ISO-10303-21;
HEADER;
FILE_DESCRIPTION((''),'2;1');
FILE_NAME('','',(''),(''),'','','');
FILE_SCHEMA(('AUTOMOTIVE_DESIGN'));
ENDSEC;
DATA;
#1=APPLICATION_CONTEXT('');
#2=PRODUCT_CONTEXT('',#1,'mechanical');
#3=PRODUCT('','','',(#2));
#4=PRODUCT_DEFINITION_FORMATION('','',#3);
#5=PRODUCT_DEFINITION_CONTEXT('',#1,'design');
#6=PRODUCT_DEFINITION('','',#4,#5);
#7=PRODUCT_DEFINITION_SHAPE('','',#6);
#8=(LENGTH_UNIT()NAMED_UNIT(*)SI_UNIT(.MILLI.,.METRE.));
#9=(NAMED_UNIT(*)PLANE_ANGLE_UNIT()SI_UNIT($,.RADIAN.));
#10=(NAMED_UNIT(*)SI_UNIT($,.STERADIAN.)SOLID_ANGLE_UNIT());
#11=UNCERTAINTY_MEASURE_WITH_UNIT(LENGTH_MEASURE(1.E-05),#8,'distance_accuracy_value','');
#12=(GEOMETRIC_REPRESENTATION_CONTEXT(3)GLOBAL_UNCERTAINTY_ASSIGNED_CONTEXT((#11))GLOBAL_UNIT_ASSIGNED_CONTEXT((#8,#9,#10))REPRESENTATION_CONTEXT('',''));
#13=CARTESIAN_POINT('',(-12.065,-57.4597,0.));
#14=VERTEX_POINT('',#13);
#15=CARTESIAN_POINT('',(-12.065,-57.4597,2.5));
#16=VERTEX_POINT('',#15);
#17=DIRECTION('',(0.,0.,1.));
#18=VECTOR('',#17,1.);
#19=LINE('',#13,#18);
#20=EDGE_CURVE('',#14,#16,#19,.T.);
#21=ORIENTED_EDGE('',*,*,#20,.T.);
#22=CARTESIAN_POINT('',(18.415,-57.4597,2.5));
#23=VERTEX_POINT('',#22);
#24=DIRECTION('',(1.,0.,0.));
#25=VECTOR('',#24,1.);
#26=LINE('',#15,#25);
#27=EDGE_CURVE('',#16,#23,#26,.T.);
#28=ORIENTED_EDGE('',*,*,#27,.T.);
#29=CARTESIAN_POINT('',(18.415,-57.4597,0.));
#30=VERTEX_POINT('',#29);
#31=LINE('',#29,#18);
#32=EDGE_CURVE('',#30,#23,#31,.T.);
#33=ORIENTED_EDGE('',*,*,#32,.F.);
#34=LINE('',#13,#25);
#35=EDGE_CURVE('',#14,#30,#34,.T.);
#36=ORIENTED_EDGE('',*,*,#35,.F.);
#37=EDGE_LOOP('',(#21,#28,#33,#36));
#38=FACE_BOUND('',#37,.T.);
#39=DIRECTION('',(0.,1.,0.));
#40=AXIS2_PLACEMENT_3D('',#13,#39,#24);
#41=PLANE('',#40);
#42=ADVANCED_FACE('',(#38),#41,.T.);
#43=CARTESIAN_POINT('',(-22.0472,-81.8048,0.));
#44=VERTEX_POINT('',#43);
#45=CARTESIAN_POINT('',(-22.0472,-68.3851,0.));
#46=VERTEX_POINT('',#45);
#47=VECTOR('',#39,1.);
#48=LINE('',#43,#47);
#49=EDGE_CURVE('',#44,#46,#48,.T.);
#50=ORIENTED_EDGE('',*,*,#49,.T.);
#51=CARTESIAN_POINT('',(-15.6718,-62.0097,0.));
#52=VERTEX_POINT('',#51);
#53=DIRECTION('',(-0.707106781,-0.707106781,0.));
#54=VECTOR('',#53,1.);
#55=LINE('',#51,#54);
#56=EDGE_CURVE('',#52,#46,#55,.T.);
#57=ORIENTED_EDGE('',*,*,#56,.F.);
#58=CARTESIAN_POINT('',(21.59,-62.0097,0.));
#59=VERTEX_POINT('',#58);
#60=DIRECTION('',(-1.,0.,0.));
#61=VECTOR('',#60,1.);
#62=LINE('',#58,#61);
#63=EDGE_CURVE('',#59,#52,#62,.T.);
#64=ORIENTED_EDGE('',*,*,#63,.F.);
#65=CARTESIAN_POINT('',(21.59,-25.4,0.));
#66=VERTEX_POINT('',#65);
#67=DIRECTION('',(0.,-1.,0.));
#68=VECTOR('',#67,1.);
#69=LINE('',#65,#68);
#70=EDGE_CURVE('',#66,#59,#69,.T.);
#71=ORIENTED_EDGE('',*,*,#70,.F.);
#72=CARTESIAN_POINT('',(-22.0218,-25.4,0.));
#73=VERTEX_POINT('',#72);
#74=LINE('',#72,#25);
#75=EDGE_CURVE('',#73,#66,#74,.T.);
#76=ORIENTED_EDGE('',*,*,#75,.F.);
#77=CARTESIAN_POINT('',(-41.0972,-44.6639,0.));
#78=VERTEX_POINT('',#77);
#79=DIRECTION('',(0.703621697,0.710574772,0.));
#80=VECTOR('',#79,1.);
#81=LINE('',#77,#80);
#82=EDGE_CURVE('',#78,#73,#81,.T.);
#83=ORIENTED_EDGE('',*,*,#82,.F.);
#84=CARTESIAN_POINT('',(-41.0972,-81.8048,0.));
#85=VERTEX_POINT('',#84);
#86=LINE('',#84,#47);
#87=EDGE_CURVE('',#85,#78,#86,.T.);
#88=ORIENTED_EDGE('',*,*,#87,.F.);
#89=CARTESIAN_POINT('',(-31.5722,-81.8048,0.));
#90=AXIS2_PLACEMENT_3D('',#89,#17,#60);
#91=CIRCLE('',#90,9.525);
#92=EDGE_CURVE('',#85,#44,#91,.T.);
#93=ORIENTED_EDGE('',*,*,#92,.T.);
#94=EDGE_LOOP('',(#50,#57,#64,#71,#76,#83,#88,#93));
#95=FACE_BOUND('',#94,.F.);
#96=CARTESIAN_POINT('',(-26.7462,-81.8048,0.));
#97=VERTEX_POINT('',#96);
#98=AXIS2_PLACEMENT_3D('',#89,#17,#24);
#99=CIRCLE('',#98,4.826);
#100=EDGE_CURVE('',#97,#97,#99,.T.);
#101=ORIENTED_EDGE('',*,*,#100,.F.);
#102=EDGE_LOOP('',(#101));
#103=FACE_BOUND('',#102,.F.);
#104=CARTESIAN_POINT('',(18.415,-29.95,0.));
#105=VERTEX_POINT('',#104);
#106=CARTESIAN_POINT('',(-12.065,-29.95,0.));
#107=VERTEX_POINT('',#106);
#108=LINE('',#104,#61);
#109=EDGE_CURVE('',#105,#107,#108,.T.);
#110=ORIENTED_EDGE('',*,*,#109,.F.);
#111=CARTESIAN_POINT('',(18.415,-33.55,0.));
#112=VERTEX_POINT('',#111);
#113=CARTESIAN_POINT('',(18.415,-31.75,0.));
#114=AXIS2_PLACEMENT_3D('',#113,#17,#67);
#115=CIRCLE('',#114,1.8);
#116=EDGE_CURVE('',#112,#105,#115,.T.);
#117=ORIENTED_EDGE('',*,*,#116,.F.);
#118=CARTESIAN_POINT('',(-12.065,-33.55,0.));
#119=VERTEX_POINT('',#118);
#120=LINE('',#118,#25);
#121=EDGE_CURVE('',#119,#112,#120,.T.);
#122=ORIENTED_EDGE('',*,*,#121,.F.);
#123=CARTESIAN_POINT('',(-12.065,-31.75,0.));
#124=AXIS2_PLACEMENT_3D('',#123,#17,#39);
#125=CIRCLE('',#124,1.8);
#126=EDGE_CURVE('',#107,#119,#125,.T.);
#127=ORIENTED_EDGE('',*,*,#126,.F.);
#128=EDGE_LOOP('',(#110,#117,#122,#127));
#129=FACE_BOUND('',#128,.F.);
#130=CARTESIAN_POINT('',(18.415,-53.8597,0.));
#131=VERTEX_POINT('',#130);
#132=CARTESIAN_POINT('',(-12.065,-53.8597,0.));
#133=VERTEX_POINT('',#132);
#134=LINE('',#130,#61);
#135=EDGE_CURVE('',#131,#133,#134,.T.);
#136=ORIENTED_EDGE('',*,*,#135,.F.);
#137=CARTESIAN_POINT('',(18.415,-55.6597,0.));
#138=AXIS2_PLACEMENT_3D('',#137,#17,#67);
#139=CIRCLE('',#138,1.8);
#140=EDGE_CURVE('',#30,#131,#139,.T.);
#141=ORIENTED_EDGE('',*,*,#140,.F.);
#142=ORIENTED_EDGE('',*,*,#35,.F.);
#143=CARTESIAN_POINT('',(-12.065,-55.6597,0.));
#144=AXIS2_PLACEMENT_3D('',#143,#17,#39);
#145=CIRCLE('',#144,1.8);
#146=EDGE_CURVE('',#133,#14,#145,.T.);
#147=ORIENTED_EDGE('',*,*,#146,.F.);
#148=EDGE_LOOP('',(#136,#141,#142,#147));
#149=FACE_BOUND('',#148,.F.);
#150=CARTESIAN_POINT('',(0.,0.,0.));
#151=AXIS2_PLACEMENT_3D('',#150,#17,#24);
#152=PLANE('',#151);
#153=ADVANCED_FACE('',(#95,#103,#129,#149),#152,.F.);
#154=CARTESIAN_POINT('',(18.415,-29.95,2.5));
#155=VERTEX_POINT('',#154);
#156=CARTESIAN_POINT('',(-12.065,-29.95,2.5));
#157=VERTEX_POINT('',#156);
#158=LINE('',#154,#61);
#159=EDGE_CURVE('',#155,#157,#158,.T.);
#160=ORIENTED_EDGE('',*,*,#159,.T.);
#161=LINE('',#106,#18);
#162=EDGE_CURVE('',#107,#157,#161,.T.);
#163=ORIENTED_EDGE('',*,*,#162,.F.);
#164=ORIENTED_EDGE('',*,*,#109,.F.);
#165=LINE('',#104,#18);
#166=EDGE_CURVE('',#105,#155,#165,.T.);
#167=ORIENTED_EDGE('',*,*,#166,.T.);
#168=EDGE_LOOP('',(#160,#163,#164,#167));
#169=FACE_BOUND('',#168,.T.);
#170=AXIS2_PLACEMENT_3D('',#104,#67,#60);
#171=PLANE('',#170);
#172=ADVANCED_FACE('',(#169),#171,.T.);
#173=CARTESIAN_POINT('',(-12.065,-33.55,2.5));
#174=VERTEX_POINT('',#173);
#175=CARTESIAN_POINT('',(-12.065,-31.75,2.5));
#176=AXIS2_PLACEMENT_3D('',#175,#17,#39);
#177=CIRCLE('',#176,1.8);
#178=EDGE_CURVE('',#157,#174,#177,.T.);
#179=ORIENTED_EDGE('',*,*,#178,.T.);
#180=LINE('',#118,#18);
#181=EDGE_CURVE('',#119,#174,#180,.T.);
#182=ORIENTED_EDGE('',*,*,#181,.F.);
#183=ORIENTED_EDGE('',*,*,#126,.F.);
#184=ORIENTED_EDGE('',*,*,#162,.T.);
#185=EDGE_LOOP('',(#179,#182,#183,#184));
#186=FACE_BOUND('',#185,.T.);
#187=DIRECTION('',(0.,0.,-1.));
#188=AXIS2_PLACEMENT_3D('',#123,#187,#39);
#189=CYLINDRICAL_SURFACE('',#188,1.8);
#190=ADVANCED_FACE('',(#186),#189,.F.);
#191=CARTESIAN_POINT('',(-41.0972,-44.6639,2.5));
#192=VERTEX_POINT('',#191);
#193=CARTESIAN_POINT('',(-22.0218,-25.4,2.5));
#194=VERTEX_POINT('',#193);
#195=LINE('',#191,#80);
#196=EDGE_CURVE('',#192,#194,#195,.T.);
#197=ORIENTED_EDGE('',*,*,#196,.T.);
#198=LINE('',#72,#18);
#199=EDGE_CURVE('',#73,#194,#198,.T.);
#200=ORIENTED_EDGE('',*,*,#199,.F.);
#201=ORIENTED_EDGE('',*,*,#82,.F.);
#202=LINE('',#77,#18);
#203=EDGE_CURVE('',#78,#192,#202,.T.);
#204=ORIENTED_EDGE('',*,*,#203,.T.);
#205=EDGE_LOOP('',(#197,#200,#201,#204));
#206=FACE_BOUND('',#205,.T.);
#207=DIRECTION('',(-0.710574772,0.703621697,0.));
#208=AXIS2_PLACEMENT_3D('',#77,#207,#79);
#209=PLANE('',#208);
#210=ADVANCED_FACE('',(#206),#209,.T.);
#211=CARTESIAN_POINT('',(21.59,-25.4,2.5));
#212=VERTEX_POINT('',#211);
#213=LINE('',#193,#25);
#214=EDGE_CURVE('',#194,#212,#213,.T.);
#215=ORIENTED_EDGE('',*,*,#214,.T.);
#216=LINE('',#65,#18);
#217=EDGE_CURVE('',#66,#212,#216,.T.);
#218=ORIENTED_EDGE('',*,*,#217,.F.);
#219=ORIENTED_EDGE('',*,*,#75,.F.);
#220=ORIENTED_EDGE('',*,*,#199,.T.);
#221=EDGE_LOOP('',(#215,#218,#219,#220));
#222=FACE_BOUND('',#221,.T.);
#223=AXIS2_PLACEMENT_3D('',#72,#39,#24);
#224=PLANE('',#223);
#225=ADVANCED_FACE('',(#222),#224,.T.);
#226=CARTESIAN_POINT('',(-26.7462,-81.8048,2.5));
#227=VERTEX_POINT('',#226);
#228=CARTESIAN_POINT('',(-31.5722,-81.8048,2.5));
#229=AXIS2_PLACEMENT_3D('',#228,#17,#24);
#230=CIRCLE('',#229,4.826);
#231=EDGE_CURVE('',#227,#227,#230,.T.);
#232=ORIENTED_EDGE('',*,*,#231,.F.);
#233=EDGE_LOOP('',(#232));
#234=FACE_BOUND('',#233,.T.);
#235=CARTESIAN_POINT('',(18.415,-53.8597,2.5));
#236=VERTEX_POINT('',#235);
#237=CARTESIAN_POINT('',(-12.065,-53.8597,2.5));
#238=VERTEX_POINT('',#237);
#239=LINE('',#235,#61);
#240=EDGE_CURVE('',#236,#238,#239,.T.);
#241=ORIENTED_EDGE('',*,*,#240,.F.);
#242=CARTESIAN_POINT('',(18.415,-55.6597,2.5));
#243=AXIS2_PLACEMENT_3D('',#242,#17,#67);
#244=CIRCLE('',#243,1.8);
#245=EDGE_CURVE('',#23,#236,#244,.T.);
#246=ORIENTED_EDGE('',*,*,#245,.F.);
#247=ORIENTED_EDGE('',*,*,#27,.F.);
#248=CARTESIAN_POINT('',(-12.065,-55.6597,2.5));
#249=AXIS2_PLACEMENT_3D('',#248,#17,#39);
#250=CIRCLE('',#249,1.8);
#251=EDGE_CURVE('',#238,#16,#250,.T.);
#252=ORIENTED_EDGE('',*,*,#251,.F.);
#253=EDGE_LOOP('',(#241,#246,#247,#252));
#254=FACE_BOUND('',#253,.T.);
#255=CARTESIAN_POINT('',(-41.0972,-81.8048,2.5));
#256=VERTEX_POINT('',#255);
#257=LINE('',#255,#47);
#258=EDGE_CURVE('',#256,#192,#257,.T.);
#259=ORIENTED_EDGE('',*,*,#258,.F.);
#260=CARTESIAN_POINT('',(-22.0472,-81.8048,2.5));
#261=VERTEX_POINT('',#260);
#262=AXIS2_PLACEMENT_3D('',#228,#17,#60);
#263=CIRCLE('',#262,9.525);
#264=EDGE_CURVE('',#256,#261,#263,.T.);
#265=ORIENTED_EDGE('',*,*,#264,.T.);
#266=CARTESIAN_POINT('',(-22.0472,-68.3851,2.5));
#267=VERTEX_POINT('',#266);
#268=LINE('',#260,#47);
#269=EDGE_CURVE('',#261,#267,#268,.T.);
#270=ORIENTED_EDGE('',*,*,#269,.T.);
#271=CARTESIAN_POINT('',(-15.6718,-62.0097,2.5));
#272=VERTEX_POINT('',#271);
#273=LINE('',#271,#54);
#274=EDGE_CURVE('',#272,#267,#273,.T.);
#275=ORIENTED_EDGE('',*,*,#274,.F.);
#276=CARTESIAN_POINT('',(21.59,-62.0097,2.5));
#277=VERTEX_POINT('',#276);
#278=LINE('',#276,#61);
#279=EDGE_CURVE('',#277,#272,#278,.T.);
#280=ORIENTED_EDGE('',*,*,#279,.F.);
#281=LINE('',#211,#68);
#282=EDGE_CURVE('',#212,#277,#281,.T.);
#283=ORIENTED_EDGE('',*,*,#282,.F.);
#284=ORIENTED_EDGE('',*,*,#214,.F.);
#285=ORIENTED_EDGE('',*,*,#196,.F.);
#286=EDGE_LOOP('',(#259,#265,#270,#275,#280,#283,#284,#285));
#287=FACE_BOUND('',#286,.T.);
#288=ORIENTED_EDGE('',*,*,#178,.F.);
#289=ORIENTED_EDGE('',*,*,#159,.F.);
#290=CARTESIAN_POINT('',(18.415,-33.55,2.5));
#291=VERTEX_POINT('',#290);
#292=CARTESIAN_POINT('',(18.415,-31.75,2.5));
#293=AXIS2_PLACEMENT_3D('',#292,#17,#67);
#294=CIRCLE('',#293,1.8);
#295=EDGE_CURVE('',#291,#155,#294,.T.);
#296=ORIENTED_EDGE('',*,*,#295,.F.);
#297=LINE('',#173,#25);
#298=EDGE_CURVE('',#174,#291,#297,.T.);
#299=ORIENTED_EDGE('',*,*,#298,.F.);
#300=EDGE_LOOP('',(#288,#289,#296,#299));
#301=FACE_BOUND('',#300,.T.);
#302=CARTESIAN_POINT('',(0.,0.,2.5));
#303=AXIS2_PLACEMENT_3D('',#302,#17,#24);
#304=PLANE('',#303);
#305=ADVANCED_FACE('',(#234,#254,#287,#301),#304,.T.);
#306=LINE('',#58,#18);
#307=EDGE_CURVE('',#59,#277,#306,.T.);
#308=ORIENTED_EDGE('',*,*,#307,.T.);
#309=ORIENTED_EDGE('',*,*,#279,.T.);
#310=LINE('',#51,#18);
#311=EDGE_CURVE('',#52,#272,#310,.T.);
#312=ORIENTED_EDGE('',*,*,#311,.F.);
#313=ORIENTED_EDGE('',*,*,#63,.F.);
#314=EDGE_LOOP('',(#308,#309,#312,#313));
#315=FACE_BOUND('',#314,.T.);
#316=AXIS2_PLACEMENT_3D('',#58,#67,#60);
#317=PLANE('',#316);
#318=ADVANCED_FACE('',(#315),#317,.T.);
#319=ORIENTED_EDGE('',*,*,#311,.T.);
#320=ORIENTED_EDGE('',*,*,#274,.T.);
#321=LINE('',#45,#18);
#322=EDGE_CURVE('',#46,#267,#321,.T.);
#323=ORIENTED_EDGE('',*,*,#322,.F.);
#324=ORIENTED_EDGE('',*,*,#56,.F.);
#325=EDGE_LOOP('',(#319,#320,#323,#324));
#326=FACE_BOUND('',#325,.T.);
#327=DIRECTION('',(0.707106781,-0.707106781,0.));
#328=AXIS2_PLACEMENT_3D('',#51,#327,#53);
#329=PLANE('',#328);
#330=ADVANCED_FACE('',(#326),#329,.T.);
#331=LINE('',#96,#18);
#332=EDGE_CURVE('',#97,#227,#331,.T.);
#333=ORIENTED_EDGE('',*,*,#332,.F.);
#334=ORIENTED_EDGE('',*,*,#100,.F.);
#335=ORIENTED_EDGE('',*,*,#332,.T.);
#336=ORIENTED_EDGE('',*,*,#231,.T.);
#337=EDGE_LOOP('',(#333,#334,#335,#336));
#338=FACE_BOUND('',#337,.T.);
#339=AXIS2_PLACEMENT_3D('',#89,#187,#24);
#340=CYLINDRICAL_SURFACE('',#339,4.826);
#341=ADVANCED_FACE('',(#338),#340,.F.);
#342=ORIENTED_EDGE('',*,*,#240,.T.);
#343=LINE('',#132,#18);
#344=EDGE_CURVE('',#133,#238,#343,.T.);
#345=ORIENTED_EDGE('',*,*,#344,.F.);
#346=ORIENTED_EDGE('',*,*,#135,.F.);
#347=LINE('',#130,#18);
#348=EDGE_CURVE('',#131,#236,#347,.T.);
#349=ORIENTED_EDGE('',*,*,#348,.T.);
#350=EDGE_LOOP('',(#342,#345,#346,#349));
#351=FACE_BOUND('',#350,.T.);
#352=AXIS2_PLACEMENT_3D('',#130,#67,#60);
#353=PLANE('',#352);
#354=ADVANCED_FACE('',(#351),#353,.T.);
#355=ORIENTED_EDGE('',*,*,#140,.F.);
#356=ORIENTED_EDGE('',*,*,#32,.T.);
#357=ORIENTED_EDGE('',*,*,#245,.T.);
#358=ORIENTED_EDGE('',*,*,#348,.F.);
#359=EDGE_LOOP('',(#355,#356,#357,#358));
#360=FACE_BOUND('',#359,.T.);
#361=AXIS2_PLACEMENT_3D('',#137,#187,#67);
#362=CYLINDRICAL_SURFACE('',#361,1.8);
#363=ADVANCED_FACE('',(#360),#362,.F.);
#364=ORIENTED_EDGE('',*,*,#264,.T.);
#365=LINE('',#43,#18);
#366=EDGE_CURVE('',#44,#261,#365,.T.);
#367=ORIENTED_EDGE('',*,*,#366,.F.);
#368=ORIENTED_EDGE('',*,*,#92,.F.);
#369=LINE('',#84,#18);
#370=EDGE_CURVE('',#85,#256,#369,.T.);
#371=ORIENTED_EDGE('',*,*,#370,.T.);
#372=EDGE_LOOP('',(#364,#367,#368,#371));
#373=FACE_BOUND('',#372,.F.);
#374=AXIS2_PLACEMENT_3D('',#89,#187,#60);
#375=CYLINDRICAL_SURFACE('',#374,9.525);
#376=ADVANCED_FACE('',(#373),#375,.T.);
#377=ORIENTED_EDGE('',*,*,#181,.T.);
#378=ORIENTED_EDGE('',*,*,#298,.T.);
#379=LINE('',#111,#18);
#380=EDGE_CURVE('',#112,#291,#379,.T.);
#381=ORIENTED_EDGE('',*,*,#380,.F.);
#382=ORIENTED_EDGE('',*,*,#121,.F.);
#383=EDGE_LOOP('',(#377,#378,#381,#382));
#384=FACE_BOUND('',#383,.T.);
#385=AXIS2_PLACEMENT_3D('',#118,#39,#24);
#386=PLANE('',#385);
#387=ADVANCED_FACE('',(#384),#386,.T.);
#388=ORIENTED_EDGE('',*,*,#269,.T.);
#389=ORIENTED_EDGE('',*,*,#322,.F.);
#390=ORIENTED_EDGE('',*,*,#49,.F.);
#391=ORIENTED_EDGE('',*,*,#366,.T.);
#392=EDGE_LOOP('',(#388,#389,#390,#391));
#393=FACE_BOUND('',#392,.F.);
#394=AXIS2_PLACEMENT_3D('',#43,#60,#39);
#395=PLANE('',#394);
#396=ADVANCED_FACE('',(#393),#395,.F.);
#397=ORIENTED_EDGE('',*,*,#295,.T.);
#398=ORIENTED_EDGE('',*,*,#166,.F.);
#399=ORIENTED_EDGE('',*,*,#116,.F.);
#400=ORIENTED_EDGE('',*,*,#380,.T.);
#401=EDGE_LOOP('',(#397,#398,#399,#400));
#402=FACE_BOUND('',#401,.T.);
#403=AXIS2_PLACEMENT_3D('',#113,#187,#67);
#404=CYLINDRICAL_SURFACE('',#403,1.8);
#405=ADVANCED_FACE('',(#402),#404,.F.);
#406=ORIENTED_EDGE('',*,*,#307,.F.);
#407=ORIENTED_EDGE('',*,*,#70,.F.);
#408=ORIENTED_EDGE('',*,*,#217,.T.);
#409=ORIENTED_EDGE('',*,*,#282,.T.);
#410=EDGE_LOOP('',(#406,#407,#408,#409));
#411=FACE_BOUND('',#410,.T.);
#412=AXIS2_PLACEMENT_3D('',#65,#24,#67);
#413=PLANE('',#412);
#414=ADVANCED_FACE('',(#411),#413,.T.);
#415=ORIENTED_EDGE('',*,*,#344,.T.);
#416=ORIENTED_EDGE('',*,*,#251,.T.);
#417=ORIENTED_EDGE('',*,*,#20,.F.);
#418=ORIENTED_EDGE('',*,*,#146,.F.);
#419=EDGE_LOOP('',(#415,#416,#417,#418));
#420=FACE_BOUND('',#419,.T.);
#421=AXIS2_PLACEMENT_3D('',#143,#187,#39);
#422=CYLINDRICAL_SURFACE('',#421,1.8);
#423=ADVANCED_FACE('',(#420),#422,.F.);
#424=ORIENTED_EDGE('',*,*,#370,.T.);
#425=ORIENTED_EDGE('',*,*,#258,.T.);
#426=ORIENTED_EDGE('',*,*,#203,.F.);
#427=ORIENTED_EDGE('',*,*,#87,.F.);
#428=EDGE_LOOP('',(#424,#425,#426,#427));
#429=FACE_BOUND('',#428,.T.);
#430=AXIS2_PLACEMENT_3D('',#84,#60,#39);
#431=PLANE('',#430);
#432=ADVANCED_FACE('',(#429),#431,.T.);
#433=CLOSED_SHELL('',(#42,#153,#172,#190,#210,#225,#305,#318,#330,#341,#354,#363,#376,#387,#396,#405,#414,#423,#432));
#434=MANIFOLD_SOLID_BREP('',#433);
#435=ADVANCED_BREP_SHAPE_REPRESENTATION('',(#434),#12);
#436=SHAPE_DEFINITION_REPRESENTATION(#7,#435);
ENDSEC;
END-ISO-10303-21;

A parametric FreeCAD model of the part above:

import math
import FreeCAD as App
import Part
import Sketcher
from FreeCAD import Vector
Q = App.Units.Quantity

doc = App.newDocument("Part")
body = doc.addObject("PartDesign::Body", "Body")

# Sketch on XY plane
sketch1 = body.newObject("Sketcher::SketchObject", "Sketch")
sketch1.AttachmentSupport = (doc.getObject("XY_Plane"), [""])
sketch1.MapMode = "FlatFace"
sketch1.addGeometry(Part.LineSegment(Vector(-15.7, -62, 0), Vector(21.6, -62, 0)), False)
sketch1.addGeometry(Part.LineSegment(Vector(21.6, -62, 0), Vector(21.6, -25.4, 0)), False)
sketch1.addGeometry(Part.LineSegment(Vector(21.6, -25.4, 0), Vector(-22, -25.4, 0)), False)
sketch1.addGeometry(Part.LineSegment(Vector(-22, -25.4, 0), Vector(-41.1, -44.7, 0)), False)
sketch1.addGeometry(Part.LineSegment(Vector(-41.1, -44.7, 0), Vector(-41.1, -81.8, 0)), False)
sketch1.addGeometry(Part.ArcOfCircle(Part.Circle(Vector(-31.6, -81.8, 0), Vector(0, 0, 1), 9.5), math.radians(180), math.radians(360)), False)
sketch1.addGeometry(Part.LineSegment(Vector(-22, -81.8, 0), Vector(-22, -68.4, 0)), False)
sketch1.addGeometry(Part.LineSegment(Vector(-22, -68.4, 0), Vector(-15.7, -62, 0)), False)
sketch1.addGeometry(Part.Circle(Vector(-31.6, -81.8, 0), Vector(0, 0, 1), 4.8), False)
sketch1.addGeometry(Part.LineSegment(Vector(-12.1, -53.9, 0), Vector(18.4, -53.9, 0)), False)
sketch1.addGeometry(Part.ArcOfCircle(Part.Circle(Vector(18.4, -55.7, 0), Vector(0, 0, 1), 1.8), math.radians(-90), math.radians(90)), False)
sketch1.addGeometry(Part.LineSegment(Vector(18.4, -57.5, 0), Vector(-12.1, -57.5, 0)), False)
sketch1.addGeometry(Part.ArcOfCircle(Part.Circle(Vector(-12.1, -55.7, 0), Vector(0, 0, 1), 1.8), math.radians(90), math.radians(270)), False)
sketch1.addGeometry(Part.LineSegment(Vector(-12.1, -29.9, 0), Vector(18.4, -29.9, 0)), False)
sketch1.addGeometry(Part.ArcOfCircle(Part.Circle(Vector(18.4, -31.8, 0), Vector(0, 0, 1), 1.8), math.radians(-90), math.radians(90)), False)
sketch1.addGeometry(Part.LineSegment(Vector(18.4, -33.5, 0), Vector(-12.1, -33.5, 0)), False)
sketch1.addGeometry(Part.ArcOfCircle(Part.Circle(Vector(-12.1, -31.8, 0), Vector(0, 0, 1), 1.8), math.radians(90), math.radians(270)), False)
sketch1.addConstraint(Sketcher.Constraint("Coincident", 0, 2, 1, 1))
sketch1.addConstraint(Sketcher.Constraint("Coincident", 1, 2, 2, 1))
sketch1.addConstraint(Sketcher.Constraint("Coincident", 2, 2, 3, 1))
sketch1.addConstraint(Sketcher.Constraint("Coincident", 3, 2, 4, 1))
sketch1.addConstraint(Sketcher.Constraint("Tangent", 4, 2, 5, 1))
sketch1.addConstraint(Sketcher.Constraint("Tangent", 5, 2, 6, 1))
sketch1.addConstraint(Sketcher.Constraint("Coincident", 6, 2, 7, 1))
sketch1.addConstraint(Sketcher.Constraint("Coincident", 7, 2, 0, 1))
sketch1.addConstraint(Sketcher.Constraint("Tangent", 9, 2, 10, 2))
sketch1.addConstraint(Sketcher.Constraint("Tangent", 10, 1, 11, 1))
sketch1.addConstraint(Sketcher.Constraint("Tangent", 11, 2, 12, 2))
sketch1.addConstraint(Sketcher.Constraint("Tangent", 12, 1, 9, 1))
sketch1.addConstraint(Sketcher.Constraint("Tangent", 13, 2, 14, 2))
sketch1.addConstraint(Sketcher.Constraint("Tangent", 14, 1, 15, 1))
sketch1.addConstraint(Sketcher.Constraint("Tangent", 15, 2, 16, 2))
sketch1.addConstraint(Sketcher.Constraint("Tangent", 16, 1, 13, 1))
sketch1.addConstraint(Sketcher.Constraint("Horizontal", 0))
sketch1.addConstraint(Sketcher.Constraint("Vertical", 1))
sketch1.addConstraint(Sketcher.Constraint("Horizontal", 2))
sketch1.addConstraint(Sketcher.Constraint("Vertical", 4))
sketch1.addConstraint(Sketcher.Constraint("Vertical", 6))
sketch1.addConstraint(Sketcher.Constraint("Horizontal", 9))
sketch1.addConstraint(Sketcher.Constraint("Horizontal", 11))
sketch1.addConstraint(Sketcher.Constraint("Horizontal", 13))
sketch1.addConstraint(Sketcher.Constraint("Horizontal", 15))
sketch1.addConstraint(Sketcher.Constraint("Coincident", 8, 3, 5, 3))
sketch1.addConstraint(Sketcher.Constraint("Equal", 12, 14))
sketch1.addConstraint(Sketcher.Constraint("Vertical", 10, 3, 14, 3))
sketch1.addConstraint(Sketcher.Constraint("Vertical", 12, 3, 16, 3))
sketch1.addConstraint(Sketcher.Constraint("Diameter", 8, Q("0.38 in")))
sketch1.addConstraint(Sketcher.Constraint("DistanceX", 9, 1, 9, 2, Q("1.2 in")))
sketch1.addConstraint(Sketcher.Constraint("DistanceY", 1, 2, -1, 1, Q("1 in")))
sketch1.addConstraint(Sketcher.Constraint("Angle", 7, Q("45 deg")))
sketch1.addConstraint(Sketcher.Constraint("Radius", 5, Q("0.375 in")))
sketch1.addConstraint(Sketcher.Constraint("DistanceX", 0, 1, 0, 2, Q("1.467 in")))
sketch1.addConstraint(Sketcher.Constraint("DistanceX", 2, 2, 2, 1, Q("1.717 in")))
sketch1.addConstraint(Sketcher.Constraint("DistanceY", 14, 3, -1, 1, Q("1.25 in")))
sketch1.addConstraint(Sketcher.Constraint("DistanceX", -1, 1, 0, 2, Q("0.85 in")))
sketch1.addConstraint(Sketcher.Constraint("Radius", 10, 1.8))
sketch1.addConstraint(Sketcher.Constraint("DistanceY", 0, 2, 10, 3, Q("0.25 in")))
sketch1.addConstraint(Sketcher.Constraint("DistanceX", 5, 3, -1, 1, Q("1.243 in")))
sketch1.addConstraint(Sketcher.Constraint("DistanceX", -1, 1, 10, 3, Q("0.725 in")))
sketch1.addConstraint(Sketcher.Constraint("DistanceY", 1, 1, 1, 2, 36.6097))
sketch1.addConstraint(Sketcher.Constraint("DistanceY", 4, 2, 4, 1, 37.141))
sketch1.addConstraint(Sketcher.Constraint("DistanceY", 6, 1, 6, 2, 13.4197))
pad1 = body.newObject("PartDesign::Pad", "Pad")
pad1.Profile = sketch1
pad1.Length = 2.5

doc.recompute()
